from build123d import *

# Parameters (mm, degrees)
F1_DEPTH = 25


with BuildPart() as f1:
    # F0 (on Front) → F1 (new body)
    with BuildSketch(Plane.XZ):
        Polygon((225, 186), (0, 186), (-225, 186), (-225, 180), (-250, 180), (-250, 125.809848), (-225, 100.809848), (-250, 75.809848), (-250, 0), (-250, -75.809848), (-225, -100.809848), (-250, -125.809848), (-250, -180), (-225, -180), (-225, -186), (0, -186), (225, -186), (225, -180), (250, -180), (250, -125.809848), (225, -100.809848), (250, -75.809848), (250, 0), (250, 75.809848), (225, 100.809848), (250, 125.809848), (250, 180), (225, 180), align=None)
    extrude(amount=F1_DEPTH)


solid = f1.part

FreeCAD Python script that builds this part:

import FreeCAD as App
import Part
import Sketcher
from FreeCAD import Vector


def add_polygon(sketch, points):
    """Adds a closed chain of lines whose ends are joined by coincident constraints."""
    first, n = sketch.GeometryCount, len(points)
    for a, b in zip(points, points[1:] + points[:1]):
        sketch.addGeometry(Part.LineSegment(App.Vector(*a, 0), App.Vector(*b, 0)), False)
    for i in range(n):
        sketch.addConstraint(Sketcher.Constraint("Coincident", first + i, 2, first + (i + 1) % n, 1))

doc = App.newDocument("Part")
body = doc.addObject("PartDesign::Body", "Body")

sketch1 = body.newObject("Sketcher::SketchObject", "Sketch")
sketch1.AttachmentSupport = (doc.getObject("XZ_Plane"), [""])
sketch1.MapMode = "FlatFace"
add_polygon(sketch1, [(225, 186), (-225, 186), (-225, 180), (-250, 180), (-250, 125.809848), (-225, 100.809848), (-250, 75.809848), (-250, -75.809848), (-225, -100.809848), (-250, -125.809848), (-250, -180), (-225, -180), (-225, -186), (225, -186), (225, -180), (250, -180), (250, -125.809848), (225, -100.809848), (250, -75.809848), (250, 75.809848), (225, 100.809848), (250, 125.809848), (250, 180), (225, 180)])
sketch1.addConstraint([
    Sketcher.Constraint("Horizontal", 0),
    Sketcher.Constraint("Vertical", 1),
    Sketcher.Constraint("Horizontal", 2),
    Sketcher.Constraint("Vertical", 3),
    Sketcher.Constraint("Vertical", 6),
    Sketcher.Constraint("Vertical", 9),
    Sketcher.Constraint("Horizontal", 10),
    Sketcher.Constraint("Vertical", 11),
    Sketcher.Constraint("Horizontal", 12),
    Sketcher.Constraint("Vertical", 13),
    Sketcher.Constraint("Horizontal", 14),
    Sketcher.Constraint("Vertical", 15),
    Sketcher.Constraint("Vertical", 18),
    Sketcher.Constraint("Vertical", 21),
    Sketcher.Constraint("Horizontal", 22),
    Sketcher.Constraint("Vertical", 23),
    Sketcher.Constraint("Symmetric", 0, 2, 12, 2, -1, 1),
    Sketcher.Constraint("Symmetric", 2, 2, 14, 2, -1, 1),
    Sketcher.Constraint("Symmetric", 4, 2, 16, 2, -1, 1),
    Sketcher.Constraint("Symmetric", 5, 2, 17, 2, -1, 1),
    Sketcher.Constraint("Symmetric", 7, 2, 19, 2, -1, 1),
    Sketcher.Constraint("Symmetric", 8, 2, 20, 2, -1, 1),
    Sketcher.Constraint("Symmetric", 10, 2, 22, 2, -1, 1),
    Sketcher.Constraint("Symmetric", 10, 2, 13, 2, -2),
    Sketcher.Constraint("Symmetric", 8, 2, 15, 2, -2),
    Sketcher.Constraint("Symmetric", 7, 2, 16, 2, -2),
    Sketcher.Constraint("Perpendicular", 4, 5),
    Sketcher.Constraint("Perpendicular", 5, 7),
    Sketcher.Constraint("Perpendicular", 7, 8),
    Sketcher.Constraint("Perpendicular", 8, 16),
    Sketcher.Constraint("Perpendicular", 17, 19),
    Sketcher.Constraint("Vertical", 1, 2, 4, 2),
    Sketcher.Constraint("Vertical", 3, 2, 5, 2),
    Sketcher.Constraint("DistanceX", 0, 2, 0, 1, 450.0),
    Sketcher.Constraint("DistanceX", 2, 2, 2, 1, 25.0),
    Sketcher.Constraint("DistanceY", 1, 2, 1, 1, 6.0),
    Sketcher.Constraint("DistanceY", -1, 1, 0, 2, 186.0),
    Sketcher.Constraint("DistanceY", 3, 2, 3, 1, 54.190152),
])
pad1 = body.newObject("PartDesign::Pad", "Pad")
pad1.Profile = sketch1
pad1.Length = 25

doc.recompute()
